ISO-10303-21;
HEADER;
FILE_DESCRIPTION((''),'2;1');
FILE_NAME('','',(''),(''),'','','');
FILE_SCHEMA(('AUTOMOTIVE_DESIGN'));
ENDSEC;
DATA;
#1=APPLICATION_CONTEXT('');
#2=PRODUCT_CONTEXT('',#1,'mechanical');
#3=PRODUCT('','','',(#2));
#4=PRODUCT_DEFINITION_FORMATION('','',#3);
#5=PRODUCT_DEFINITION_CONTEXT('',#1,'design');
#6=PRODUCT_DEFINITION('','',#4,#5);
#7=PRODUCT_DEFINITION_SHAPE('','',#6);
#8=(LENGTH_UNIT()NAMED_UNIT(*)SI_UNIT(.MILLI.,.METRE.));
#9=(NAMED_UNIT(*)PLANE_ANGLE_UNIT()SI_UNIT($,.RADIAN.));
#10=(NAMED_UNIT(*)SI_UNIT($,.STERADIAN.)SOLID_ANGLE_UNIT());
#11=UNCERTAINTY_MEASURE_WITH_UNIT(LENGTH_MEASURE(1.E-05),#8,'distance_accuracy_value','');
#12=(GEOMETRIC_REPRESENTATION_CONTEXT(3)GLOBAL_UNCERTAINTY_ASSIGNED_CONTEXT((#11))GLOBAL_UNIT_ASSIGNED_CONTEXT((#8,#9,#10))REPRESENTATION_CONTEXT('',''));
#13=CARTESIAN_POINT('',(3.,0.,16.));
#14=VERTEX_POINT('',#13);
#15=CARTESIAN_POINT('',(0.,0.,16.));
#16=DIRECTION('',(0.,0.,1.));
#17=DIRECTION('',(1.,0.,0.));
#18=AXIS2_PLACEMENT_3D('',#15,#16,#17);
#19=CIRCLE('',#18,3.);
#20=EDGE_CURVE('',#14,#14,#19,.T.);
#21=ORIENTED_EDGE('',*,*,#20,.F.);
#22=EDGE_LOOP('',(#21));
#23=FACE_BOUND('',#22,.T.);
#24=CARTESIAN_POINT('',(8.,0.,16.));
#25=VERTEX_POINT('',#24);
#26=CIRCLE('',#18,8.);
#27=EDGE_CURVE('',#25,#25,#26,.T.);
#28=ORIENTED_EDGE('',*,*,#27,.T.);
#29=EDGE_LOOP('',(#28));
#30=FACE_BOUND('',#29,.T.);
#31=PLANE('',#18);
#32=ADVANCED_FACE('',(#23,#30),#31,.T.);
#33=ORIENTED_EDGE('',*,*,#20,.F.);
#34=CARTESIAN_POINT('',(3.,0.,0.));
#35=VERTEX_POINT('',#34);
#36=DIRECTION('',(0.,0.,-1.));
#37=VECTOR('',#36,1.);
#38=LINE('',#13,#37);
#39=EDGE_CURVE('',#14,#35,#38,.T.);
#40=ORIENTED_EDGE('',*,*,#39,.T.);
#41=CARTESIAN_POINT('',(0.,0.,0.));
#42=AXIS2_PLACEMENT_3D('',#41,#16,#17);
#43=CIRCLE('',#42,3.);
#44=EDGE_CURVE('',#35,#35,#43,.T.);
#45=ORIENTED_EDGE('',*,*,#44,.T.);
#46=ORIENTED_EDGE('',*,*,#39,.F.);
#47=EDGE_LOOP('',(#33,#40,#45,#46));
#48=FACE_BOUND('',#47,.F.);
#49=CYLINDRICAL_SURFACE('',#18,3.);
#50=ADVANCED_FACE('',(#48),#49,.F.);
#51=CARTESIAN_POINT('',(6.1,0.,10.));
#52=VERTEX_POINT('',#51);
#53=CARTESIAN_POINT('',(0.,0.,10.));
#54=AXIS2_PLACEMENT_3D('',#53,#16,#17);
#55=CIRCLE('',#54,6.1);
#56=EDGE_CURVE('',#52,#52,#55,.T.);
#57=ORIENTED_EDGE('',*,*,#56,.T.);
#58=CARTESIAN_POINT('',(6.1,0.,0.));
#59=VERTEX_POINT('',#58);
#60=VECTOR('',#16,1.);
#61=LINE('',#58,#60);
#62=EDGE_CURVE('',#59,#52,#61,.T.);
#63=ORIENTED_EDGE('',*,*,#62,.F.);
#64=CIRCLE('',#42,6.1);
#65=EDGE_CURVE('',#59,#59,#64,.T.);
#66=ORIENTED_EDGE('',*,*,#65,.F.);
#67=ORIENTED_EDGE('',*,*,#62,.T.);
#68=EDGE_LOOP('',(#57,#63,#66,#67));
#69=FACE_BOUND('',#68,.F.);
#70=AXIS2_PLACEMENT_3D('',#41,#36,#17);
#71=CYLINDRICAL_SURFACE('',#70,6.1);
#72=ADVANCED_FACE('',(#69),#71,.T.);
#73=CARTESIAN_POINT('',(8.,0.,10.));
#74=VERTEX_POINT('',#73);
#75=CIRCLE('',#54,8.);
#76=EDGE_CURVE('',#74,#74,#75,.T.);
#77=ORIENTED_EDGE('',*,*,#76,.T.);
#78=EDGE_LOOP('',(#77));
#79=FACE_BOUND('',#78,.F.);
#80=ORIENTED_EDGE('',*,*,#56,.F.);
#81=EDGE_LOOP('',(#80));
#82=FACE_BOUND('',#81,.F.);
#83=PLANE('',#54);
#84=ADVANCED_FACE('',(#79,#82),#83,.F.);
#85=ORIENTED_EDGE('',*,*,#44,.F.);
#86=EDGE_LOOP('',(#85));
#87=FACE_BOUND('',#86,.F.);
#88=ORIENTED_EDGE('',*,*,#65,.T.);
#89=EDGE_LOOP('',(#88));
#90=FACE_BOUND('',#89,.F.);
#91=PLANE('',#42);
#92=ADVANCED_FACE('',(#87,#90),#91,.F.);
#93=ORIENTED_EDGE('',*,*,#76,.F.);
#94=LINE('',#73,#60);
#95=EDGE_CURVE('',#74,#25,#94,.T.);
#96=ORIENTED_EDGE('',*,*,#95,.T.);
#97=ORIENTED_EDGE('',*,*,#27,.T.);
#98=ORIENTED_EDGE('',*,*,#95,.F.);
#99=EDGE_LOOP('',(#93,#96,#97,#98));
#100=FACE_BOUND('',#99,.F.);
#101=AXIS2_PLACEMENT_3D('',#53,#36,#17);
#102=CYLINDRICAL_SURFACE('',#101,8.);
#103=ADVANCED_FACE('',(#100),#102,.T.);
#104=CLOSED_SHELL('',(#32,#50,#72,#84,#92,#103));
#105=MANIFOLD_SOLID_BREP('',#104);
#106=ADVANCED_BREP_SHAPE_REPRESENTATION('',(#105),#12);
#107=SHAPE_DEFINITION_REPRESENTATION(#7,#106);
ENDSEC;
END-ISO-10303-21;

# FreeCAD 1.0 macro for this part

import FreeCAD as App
import Part
import Sketcher

V = App.Vector
Q = App.Units.Quantity

doc = App.newDocument("Part")
body = doc.addObject("PartDesign::Body", "Body")

# Sketch on XY plane
sketch1 = body.newObject("Sketcher::SketchObject", "Sketch")
sketch1.AttachmentSupport = (doc.getObject("XY_Plane"), [""])
sketch1.MapMode = "FlatFace"
sketch1.addGeometry(Part.Circle(V(0, 0, 0), V(0, 0, 1), 6), False)
sketch1.addConstraint(Sketcher.Constraint("Coincident", 0, 3, -1, 1))
sketch1.addConstraint(Sketcher.Constraint("Diameter", 0, Q("12.2 mm")))
pad1 = body.newObject("PartDesign::Pad", "Pad")
pad1.Profile = sketch1
pad1.Length = 10

# Sketch on XY plane
sketch2 = body.newObject("Sketcher::SketchObject", "Sketch001")
sketch2.AttachmentSupport = (doc.getObject("XY_Plane"), [""])
sketch2.MapMode = "FlatFace"
sketch2.AttachmentOffset = App.Placement(V(0, 0, 10), App.Rotation())
sketch2.addGeometry(Part.Circle(V(0, 0, 0), V(0, 0, 1), 8), False)
sketch2.addConstraint(Sketcher.Constraint("Coincident", 0, 3, -1, 1))
sketch2.addConstraint(Sketcher.Constraint("Diameter", 0, Q("16 mm")))
pad2 = body.newObject("PartDesign::Pad", "Pad001")
pad2.Profile = sketch2
pad2.Length = 6

# Sketch on XY plane
sketch3 = body.newObject("Sketcher::SketchObject", "Sketch002")
sketch3.AttachmentSupport = (doc.getObject("XY_Plane"), [""])
sketch3.MapMode = "FlatFace"
sketch3.AttachmentOffset = App.Placement(V(0, 0, 16), App.Rotation())
sketch3.addGeometry(Part.Circle(V(0, 0, 0), V(0, 0, 1), 3), False)
sketch3.addConstraint(Sketcher.Constraint("Coincident", 0, 3, -1, 1))
sketch3.addConstraint(Sketcher.Constraint("Diameter", 0, Q("6 mm")))
pocket1 = body.newObject("PartDesign::Pocket", "Pocket")
pocket1.Profile = sketch3
pocket1.Type = "ThroughAll"

doc.recompute()
